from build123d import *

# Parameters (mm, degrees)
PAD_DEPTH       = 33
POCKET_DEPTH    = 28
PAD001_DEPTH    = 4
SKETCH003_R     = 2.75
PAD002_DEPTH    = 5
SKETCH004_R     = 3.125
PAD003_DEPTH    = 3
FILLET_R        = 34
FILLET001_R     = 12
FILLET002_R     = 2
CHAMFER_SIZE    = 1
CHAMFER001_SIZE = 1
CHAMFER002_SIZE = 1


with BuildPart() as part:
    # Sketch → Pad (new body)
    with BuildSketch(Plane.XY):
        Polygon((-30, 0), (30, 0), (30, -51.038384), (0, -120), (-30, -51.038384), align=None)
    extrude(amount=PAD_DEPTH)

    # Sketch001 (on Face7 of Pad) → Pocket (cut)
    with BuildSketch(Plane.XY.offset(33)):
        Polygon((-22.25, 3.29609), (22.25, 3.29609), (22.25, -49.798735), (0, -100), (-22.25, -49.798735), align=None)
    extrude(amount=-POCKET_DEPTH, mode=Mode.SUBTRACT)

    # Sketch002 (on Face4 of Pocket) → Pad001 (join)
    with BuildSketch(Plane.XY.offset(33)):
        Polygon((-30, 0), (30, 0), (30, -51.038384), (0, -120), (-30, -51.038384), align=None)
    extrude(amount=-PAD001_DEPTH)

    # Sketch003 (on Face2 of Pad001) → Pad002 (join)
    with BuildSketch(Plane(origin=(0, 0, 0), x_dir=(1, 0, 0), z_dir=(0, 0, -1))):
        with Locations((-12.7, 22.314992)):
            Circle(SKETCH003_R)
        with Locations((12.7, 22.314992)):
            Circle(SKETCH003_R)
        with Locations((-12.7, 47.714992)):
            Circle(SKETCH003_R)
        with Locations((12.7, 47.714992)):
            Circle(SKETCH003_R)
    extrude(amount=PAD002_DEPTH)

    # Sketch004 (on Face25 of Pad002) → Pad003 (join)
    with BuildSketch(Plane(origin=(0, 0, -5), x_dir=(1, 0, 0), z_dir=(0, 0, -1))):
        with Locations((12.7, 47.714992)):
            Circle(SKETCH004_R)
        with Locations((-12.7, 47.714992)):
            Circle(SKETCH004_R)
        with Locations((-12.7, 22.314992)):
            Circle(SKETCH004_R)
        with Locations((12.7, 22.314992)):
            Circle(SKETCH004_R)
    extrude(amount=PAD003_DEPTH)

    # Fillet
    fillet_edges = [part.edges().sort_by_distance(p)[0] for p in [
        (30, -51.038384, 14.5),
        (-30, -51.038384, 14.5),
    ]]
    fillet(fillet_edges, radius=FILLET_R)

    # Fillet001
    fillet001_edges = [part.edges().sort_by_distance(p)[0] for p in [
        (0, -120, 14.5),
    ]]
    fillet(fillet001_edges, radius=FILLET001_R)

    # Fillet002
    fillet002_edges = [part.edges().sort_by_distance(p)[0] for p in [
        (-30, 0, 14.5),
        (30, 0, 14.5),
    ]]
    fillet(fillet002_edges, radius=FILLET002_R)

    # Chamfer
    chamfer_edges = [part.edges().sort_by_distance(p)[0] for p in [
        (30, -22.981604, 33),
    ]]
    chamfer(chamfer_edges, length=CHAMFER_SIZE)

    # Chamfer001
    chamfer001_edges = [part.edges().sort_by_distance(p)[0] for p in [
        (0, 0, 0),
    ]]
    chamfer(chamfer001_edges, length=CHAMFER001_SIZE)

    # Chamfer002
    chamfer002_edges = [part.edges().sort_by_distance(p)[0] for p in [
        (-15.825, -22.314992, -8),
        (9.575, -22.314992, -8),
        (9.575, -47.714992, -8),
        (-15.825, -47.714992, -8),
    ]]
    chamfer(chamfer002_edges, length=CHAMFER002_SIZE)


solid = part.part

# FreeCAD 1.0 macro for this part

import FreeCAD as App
import Part
import Sketcher

V = App.Vector
Q = App.Units.Quantity


def edges_at(feature, points):
    """Names of the edges that pass closest to the given points."""
    edges = feature.Shape.Edges
    near = lambda p: min(range(len(edges)), key=lambda i: edges[i].distToShape(Part.Vertex(*p))[0])
    return sorted({f"Edge{near(p) + 1}" for p in points})


def add_polygon(sketch, points):
    """Adds a closed chain of lines whose ends are joined by coincident constraints."""
    first, n = sketch.GeometryCount, len(points)
    for a, b in zip(points, points[1:] + points[:1]):
        sketch.addGeometry(Part.LineSegment(App.Vector(*a, 0), App.Vector(*b, 0)), False)
    for i in range(n):
        sketch.addConstraint(Sketcher.Constraint("Coincident", first + i, 2, first + (i + 1) % n, 1))

doc = App.newDocument("Part")
body = doc.addObject("PartDesign::Body", "Body")

sketch1 = body.newObject("Sketcher::SketchObject", "Sketch")
sketch1.AttachmentSupport = (doc.getObject("XY_Plane"), [""])
sketch1.MapMode = "FlatFace"
add_polygon(sketch1, [(30, 0), (-30, 0), (-30, -51), (0, -120), (30, -51)])
sketch1.addConstraint([
    Sketcher.Constraint("Horizontal", 0),
    Sketcher.Constraint("Vertical", 1),
    Sketcher.Constraint("Vertical", 4),
    Sketcher.Constraint("Symmetric", 0, 2, 4, 2, -1, 1),
    Sketcher.Constraint("PointOnObject", 2, 2, -2),
    Sketcher.Constraint("Horizontal", 1, 2, 3, 2),
    Sketcher.Constraint("DistanceX", 0, 2, 0, 1, Q("60 mm")),
    Sketcher.Constraint("DistanceY", 2, 2, -1, 1, Q("120 mm")),
    Sketcher.Constraint("DistanceY", 1, 2, 1, 1, Q("51.038384 mm")),
])
pad1 = body.newObject("PartDesign::Pad", "Pad")
pad1.Profile = sketch1
pad1.Length = 33

sketch2 = body.newObject("Sketcher::SketchObject", "Sketch001")
sketch2.AttachmentSupport = (doc.getObject("XY_Plane"), [""])
sketch2.MapMode = "FlatFace"
sketch2.AttachmentOffset = App.Placement(V(0, 0, 33), App.Rotation())
add_polygon(sketch2, [(22, 3), (-22, 3), (-22, -50), (0, -100), (22, -50)])
sketch2.addConstraint([
    Sketcher.Constraint("Horizontal", 0),
    Sketcher.Constraint("Vertical", 1),
    Sketcher.Constraint("Vertical", 4),
    Sketcher.Constraint("Symmetric", 1, 2, 3, 2, -2),
    Sketcher.Constraint("PointOnObject", 2, 2, -2),
    Sketcher.Constraint("DistanceX", 0, 2, 0, 1, Q("44.5 mm")),
    Sketcher.Constraint("DistanceY", 2, 2, -1, 1, Q("100 mm")),
    Sketcher.Constraint("DistanceY", 1, 2, 1, 1, Q("53.094825 mm")),
    Sketcher.Constraint("DistanceY", -1, 1, 0, 2, Q("3.29609 mm")),
])
pocket1 = body.newObject("PartDesign::Pocket", "Pocket")
pocket1.Profile = sketch2
pocket1.Length = 28

sketch3 = body.newObject("Sketcher::SketchObject", "Sketch002")
sketch3.AttachmentSupport = (doc.getObject("XY_Plane"), [""])
sketch3.MapMode = "FlatFace"
sketch3.AttachmentOffset = App.Placement(V(0, 0, 33), App.Rotation())
add_polygon(sketch3, [(30, 0), (-30, 0), (-30, -51), (0, -120), (30, -51)])
sketch3.addConstraint([
    Sketcher.Constraint("Horizontal", 0),
    Sketcher.Constraint("Vertical", 1),
    Sketcher.Constraint("Vertical", 4),
    Sketcher.Constraint("Symmetric", 0, 2, 4, 2, -1, 1),
    Sketcher.Constraint("PointOnObject", 2, 2, -2),
    Sketcher.Constraint("Horizontal", 1, 2, 3, 2),
    Sketcher.Constraint("DistanceX", 0, 2, 0, 1, Q("60 mm")),
    Sketcher.Constraint("DistanceY", 2, 2, -1, 1, Q("120 mm")),
    Sketcher.Constraint("DistanceY", 1, 2, 1, 1, Q("51.038384 mm")),
])
pad2 = body.newObject("PartDesign::Pad", "Pad001")
pad2.Profile = sketch3
pad2.Length = 4
pad2.Reversed = True

sketch4 = body.newObject("Sketcher::SketchObject", "Sketch003")
sketch4.AttachmentSupport = (doc.getObject("XY_Plane"), [""])
sketch4.MapMode = "FlatFace"
sketch4.addGeometry([
    Part.Circle(V(-12.7, -22.3, 0), V(0, 0, 1), 2.8),
    Part.Circle(V(12.7, -22.3, 0), V(0, 0, 1), 2.8),
    Part.Circle(V(-12.7, -47.7, 0), V(0, 0, 1), 2.8),
    Part.Circle(V(12.7, -47.7, 0), V(0, 0, 1), 2.8),
], False)
sketch4.addConstraint([
    Sketcher.Constraint("Equal", 0, 1),
    Sketcher.Constraint("Equal", 1, 2),
    Sketcher.Constraint("Equal", 2, 3),
    Sketcher.Constraint("Symmetric", 0, 3, 1, 3, -2),
    Sketcher.Constraint("Symmetric", 2, 3, 3, 3, -2),
    Sketcher.Constraint("Vertical", 0, 3, 2, 3),
    Sketcher.Constraint("Diameter", 0, Q("5.5 mm")),
    Sketcher.Constraint("DistanceX", 0, 3, -1, 1, Q("12.7 mm")),
    Sketcher.Constraint("DistanceY", 2, 3, 0, 3, Q("25.4 mm")),
    Sketcher.Constraint("DistanceY", 0, 3, -1, 1, Q("22.314992 mm")),
])
pad3 = body.newObject("PartDesign::Pad", "Pad002")
pad3.Profile = sketch4
pad3.Length = 5
pad3.Reversed = True

sketch5 = body.newObject("Sketcher::SketchObject", "Sketch004")
sketch5.AttachmentSupport = (doc.getObject("XY_Plane"), [""])
sketch5.MapMode = "FlatFace"
sketch5.AttachmentOffset = App.Placement(V(0, 0, -5), App.Rotation())
sketch5.addGeometry([
    Part.Circle(V(12.7, -47.7, 0), V(0, 0, 1), 3.1),
    Part.Circle(V(-12.7, -47.7, 0), V(0, 0, 1), 3.1),
    Part.Circle(V(-12.7, -22.3, 0), V(0, 0, 1), 3.1),
    Part.Circle(V(12.7, -22.3, 0), V(0, 0, 1), 3.1),
], False)
sketch5.addConstraint([
    Sketcher.Constraint("Equal", 0, 1),
    Sketcher.Constraint("Equal", 1, 2),
    Sketcher.Constraint("Equal", 2, 3),
    Sketcher.Constraint("Symmetric", 0, 3, 1, 3, -2),
    Sketcher.Constraint("Symmetric", 2, 3, 3, 3, -2),
    Sketcher.Constraint("Vertical", 1, 3, 2, 3),
    Sketcher.Constraint("Diameter", 0, Q("6.25 mm")),
    Sketcher.Constraint("DistanceX", -1, 1, 0, 3, Q("12.7 mm")),
    Sketcher.Constraint("DistanceY", 1, 3, 2, 3, Q("25.4 mm")),
    Sketcher.Constraint("DistanceY", 2, 3, -1, 1, Q("22.314992 mm")),
])
pad4 = body.newObject("PartDesign::Pad", "Pad003")
pad4.Profile = sketch5
pad4.Length = 3
pad4.Reversed = True
doc.recompute()

fillet = body.newObject("PartDesign::Fillet", "Fillet")
fillet.Base = (pad4, edges_at(pad4, [(30, -51.038, 16.5), (-30, -51.038, 16.5)]))
fillet.Radius = 34
doc.recompute()

fillet2 = body.newObject("PartDesign::Fillet", "Fillet001")
fillet2.Base = (fillet, edges_at(fillet, [(0, -120, 16.5)]))
fillet2.Radius = 12
doc.recompute()

fillet3 = body.newObject("PartDesign::Fillet", "Fillet002")
fillet3.Base = (fillet2, edges_at(fillet2, [(-30, 0, 16.5), (30, 0, 16.5)]))
fillet3.Radius = 2
doc.recompute()

chamfer = body.newObject("PartDesign::Chamfer", "Chamfer")
chamfer.Base = (fillet3, edges_at(fillet3, [(30, -22.982, 33)]))
chamfer.Size = 1
doc.recompute()

chamfer2 = body.newObject("PartDesign::Chamfer", "Chamfer001")
chamfer2.Base = (chamfer, edges_at(chamfer, [(0, 0, 0)]))
chamfer2.Size = 1
doc.recompute()

chamfer3 = body.newObject("PartDesign::Chamfer", "Chamfer002")
chamfer3.Base = (chamfer2, edges_at(chamfer2, [
    (-15.825, -22.315, -8),
    (9.575, -22.315, -8),
    (9.575, -47.715, -8),
    (-15.825, -47.715, -8),
]))
chamfer3.Size = 1

doc.recompute()
